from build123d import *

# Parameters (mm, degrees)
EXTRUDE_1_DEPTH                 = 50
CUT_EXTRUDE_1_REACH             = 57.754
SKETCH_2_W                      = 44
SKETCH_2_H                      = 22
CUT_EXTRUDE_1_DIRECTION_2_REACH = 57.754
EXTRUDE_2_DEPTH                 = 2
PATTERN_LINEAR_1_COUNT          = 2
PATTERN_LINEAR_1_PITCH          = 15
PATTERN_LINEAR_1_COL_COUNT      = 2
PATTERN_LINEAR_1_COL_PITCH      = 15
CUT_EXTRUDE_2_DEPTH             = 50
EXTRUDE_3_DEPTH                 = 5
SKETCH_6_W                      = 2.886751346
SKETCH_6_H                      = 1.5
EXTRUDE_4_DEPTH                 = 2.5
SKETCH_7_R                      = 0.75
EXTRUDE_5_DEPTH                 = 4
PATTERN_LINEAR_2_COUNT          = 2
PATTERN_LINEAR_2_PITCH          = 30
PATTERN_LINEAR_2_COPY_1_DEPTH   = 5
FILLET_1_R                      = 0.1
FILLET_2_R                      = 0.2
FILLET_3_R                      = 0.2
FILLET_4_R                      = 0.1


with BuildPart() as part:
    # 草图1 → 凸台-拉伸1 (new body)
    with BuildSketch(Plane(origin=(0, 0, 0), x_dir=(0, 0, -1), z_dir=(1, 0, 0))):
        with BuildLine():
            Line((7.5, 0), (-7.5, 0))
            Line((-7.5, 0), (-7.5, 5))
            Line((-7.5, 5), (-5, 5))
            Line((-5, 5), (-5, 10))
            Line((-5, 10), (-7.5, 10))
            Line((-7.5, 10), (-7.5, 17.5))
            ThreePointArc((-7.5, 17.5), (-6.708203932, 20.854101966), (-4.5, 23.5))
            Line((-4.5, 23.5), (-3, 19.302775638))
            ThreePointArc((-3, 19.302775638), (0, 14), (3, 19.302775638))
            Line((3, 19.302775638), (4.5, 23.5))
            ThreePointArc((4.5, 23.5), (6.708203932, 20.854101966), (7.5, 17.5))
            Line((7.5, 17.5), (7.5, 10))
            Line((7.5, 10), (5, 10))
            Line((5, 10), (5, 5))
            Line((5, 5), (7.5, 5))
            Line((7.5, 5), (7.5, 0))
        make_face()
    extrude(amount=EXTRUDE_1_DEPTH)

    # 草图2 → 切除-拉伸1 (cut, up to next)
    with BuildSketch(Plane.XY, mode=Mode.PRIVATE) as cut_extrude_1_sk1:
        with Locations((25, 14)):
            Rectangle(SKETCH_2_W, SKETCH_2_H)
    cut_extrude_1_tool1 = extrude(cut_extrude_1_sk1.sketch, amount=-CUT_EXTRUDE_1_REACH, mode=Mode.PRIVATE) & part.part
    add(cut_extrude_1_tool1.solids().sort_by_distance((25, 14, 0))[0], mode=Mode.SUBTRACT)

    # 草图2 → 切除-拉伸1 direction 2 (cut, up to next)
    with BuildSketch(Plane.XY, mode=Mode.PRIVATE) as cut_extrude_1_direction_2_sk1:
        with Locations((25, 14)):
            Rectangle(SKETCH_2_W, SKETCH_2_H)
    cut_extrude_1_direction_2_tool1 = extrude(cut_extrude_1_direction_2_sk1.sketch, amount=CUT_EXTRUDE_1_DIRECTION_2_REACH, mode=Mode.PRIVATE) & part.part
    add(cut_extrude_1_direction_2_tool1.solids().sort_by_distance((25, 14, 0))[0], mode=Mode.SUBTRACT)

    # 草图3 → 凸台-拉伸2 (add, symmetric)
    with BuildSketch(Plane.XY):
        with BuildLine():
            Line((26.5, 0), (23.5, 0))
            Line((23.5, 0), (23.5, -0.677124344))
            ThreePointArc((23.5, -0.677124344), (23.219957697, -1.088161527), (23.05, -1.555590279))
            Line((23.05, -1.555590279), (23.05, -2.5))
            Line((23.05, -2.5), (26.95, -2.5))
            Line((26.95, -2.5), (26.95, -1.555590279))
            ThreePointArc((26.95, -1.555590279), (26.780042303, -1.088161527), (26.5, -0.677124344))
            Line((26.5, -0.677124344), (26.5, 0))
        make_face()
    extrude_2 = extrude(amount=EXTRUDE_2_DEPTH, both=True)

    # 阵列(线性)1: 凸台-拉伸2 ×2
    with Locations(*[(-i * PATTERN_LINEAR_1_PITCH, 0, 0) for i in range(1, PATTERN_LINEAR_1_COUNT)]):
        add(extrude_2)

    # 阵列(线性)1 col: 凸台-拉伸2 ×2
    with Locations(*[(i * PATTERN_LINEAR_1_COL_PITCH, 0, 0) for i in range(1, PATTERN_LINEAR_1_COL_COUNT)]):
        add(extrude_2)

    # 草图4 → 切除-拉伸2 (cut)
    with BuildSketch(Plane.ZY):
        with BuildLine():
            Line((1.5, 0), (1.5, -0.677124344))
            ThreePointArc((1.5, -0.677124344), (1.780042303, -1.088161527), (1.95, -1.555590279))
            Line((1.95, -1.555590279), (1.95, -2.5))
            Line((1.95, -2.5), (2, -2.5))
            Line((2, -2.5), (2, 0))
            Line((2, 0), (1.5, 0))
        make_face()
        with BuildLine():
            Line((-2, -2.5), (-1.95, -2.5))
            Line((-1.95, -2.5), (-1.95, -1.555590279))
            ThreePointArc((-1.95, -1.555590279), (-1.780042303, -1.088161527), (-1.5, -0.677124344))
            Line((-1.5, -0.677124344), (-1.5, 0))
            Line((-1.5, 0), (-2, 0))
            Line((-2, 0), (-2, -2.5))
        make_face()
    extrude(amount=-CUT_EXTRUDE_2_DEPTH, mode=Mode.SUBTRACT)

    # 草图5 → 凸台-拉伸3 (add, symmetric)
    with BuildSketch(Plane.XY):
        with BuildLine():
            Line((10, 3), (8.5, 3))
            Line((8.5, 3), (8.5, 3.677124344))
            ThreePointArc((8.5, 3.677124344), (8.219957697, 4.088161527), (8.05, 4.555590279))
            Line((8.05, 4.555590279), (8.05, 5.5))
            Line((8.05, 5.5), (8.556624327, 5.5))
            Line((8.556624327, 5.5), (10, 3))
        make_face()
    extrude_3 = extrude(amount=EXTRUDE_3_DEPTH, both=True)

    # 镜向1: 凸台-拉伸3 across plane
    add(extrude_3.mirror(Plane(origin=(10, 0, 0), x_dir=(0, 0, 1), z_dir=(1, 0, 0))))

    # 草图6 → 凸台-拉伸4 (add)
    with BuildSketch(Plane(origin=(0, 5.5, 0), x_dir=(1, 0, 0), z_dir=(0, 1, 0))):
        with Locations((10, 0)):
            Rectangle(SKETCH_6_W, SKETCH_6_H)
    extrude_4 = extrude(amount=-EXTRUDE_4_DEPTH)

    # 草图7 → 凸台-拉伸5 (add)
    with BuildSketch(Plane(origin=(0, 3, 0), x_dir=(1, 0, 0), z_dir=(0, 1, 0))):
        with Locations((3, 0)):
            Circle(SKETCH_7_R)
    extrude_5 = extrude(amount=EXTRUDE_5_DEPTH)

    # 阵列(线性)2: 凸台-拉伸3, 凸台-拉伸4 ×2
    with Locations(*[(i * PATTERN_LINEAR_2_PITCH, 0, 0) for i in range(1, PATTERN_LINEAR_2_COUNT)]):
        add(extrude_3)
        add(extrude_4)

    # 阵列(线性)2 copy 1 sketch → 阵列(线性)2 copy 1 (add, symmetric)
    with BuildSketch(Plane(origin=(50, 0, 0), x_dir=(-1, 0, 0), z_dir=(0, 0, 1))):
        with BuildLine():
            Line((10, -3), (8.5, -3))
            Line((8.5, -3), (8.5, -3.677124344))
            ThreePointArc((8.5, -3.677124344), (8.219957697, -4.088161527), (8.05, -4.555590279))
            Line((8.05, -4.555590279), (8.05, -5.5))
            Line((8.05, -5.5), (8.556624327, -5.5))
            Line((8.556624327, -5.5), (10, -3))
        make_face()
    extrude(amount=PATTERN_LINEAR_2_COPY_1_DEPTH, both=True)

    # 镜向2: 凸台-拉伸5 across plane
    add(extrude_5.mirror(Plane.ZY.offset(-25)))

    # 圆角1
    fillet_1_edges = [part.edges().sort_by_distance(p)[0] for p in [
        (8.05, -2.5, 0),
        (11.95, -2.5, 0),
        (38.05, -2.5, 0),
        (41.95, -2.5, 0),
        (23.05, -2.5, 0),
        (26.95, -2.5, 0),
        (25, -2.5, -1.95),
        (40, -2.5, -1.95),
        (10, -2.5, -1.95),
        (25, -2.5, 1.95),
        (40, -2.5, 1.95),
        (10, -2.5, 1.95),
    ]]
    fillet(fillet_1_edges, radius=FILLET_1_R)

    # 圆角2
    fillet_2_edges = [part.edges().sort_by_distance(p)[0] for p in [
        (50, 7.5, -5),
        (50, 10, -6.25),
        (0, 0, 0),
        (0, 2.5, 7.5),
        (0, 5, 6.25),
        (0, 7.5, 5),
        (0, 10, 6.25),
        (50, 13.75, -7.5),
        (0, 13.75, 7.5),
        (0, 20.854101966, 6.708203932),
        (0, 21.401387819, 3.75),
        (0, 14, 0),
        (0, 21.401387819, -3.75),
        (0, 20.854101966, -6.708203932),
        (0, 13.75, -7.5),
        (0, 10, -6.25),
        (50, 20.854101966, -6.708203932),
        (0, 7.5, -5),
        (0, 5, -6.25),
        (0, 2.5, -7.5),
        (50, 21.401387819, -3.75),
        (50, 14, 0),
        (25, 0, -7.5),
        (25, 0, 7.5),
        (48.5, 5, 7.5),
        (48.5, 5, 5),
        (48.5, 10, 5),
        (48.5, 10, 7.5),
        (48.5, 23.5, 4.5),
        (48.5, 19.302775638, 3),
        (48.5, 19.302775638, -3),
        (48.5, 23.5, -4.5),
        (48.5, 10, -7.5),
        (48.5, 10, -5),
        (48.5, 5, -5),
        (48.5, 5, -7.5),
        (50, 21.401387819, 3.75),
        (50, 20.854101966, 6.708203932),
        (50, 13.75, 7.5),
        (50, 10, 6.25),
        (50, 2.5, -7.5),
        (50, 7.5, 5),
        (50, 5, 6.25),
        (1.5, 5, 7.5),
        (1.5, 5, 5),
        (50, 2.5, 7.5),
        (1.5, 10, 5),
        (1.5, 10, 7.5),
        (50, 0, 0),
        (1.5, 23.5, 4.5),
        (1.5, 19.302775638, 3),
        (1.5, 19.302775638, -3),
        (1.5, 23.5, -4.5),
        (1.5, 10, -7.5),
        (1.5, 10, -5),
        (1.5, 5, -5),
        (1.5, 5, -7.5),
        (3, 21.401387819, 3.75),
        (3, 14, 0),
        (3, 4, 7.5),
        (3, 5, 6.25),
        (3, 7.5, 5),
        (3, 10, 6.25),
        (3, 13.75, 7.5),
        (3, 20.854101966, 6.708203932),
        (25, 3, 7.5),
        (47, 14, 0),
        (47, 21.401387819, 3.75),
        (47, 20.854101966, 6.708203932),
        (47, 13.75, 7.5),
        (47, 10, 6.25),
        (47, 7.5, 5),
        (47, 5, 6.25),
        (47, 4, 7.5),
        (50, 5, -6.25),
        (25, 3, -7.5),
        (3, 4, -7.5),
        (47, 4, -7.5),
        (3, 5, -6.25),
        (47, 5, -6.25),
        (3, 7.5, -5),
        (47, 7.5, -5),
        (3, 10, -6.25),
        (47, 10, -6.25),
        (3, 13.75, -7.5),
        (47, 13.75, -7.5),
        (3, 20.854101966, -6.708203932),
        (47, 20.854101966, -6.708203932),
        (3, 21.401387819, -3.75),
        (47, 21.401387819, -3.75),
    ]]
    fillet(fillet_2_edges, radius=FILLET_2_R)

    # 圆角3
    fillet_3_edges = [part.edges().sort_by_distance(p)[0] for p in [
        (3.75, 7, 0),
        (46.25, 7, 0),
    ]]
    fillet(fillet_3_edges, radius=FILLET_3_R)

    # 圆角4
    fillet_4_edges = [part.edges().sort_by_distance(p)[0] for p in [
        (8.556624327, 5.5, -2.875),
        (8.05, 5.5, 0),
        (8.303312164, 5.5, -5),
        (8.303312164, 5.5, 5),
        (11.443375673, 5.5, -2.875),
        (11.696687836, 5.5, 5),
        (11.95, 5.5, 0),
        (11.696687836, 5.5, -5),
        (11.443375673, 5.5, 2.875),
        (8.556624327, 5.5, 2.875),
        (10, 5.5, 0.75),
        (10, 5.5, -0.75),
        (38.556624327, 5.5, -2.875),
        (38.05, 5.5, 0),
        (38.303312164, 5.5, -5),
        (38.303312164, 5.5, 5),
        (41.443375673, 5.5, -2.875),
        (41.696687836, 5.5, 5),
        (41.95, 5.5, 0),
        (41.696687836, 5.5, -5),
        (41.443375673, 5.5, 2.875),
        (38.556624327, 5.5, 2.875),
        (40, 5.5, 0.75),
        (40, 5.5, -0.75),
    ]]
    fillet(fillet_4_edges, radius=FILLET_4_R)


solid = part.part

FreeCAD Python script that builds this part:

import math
import FreeCAD as App
import Part
import Sketcher
Q = App.Units.Quantity


def edges_at(feature, points):
    """Names of the edges that pass closest to the given points."""
    edges = feature.Shape.Edges
    near = lambda p: min(range(len(edges)), key=lambda i: edges[i].distToShape(Part.Vertex(*p))[0])
    return sorted({f"Edge{near(p) + 1}" for p in points})

doc = App.newDocument("Part")
body = doc.addObject("PartDesign::Body", "Body")

sketch1 = body.newObject("Sketcher::SketchObject", "Sketch")
sketch1.AttachmentSupport = (doc.getObject("YZ_Plane"), [""])
sketch1.MapMode = "FlatFace"
sketch1.addGeometry(Part.LineSegment(App.Vector(0, 7.5, 0), App.Vector(0, -7.5, 0)), False)
sketch1.addGeometry(Part.LineSegment(App.Vector(0, -7.5, 0), App.Vector(5, -7.5, 0)), False)
sketch1.addGeometry(Part.LineSegment(App.Vector(5, -7.5, 0), App.Vector(5, -5, 0)), False)
sketch1.addGeometry(Part.LineSegment(App.Vector(5, -5, 0), App.Vector(10, -5, 0)), False)
sketch1.addGeometry(Part.LineSegment(App.Vector(10, -5, 0), App.Vector(10, -7.5, 0)), False)
sketch1.addGeometry(Part.LineSegment(App.Vector(10, -7.5, 0), App.Vector(17.5, -7.5, 0)), False)
sketch1.addGeometry(Part.ArcOfCircle(Part.Circle(App.Vector(17.5, 0, 0), App.Vector(0, 0, 1), 7.5), math.radians(-90), math.radians(-36.869898)), False)
sketch1.addGeometry(Part.LineSegment(App.Vector(23.5, -4.5, 0), App.Vector(19.302776, -3, 0)), False)
sketch1.addGeometry(Part.ArcOfCircle(Part.Circle(App.Vector(17.5, 0, 0), App.Vector(0, 0, 1), 3.5), math.radians(58.997281), math.radians(301.002719)), False)
sketch1.addGeometry(Part.LineSegment(App.Vector(19.302776, 3, 0), App.Vector(23.5, 4.5, 0)), False)
sketch1.addGeometry(Part.ArcOfCircle(Part.Circle(App.Vector(17.5, 0, 0), App.Vector(0, 0, 1), 7.5), math.radians(36.869898), math.radians(90)), False)
sketch1.addGeometry(Part.LineSegment(App.Vector(17.5, 7.5, 0), App.Vector(10, 7.5, 0)), False)
sketch1.addGeometry(Part.LineSegment(App.Vector(10, 7.5, 0), App.Vector(10, 5, 0)), False)
sketch1.addGeometry(Part.LineSegment(App.Vector(10, 5, 0), App.Vector(5, 5, 0)), False)
sketch1.addGeometry(Part.LineSegment(App.Vector(5, 5, 0), App.Vector(5, 7.5, 0)), False)
sketch1.addGeometry(Part.LineSegment(App.Vector(5, 7.5, 0), App.Vector(0, 7.5, 0)), False)
sketch1.addConstraint(Sketcher.Constraint("Coincident", 0, 2, 1, 1))
sketch1.addConstraint(Sketcher.Constraint("Coincident", 1, 2, 2, 1))
sketch1.addConstraint(Sketcher.Constraint("Coincident", 2, 2, 3, 1))
sketch1.addConstraint(Sketcher.Constraint("Coincident", 3, 2, 4, 1))
sketch1.addConstraint(Sketcher.Constraint("Coincident", 4, 2, 5, 1))
sketch1.addConstraint(Sketcher.Constraint("Tangent", 5, 2, 6, 1))
sketch1.addConstraint(Sketcher.Constraint("Coincident", 6, 2, 7, 1))
sketch1.addConstraint(Sketcher.Constraint("Coincident", 7, 2, 8, 2))
sketch1.addConstraint(Sketcher.Constraint("Coincident", 8, 1, 9, 1))
sketch1.addConstraint(Sketcher.Constraint("Coincident", 9, 2, 10, 1))
sketch1.addConstraint(Sketcher.Constraint("Tangent", 10, 2, 11, 1))
sketch1.addConstraint(Sketcher.Constraint("Coincident", 11, 2, 12, 1))
sketch1.addConstraint(Sketcher.Constraint("Coincident", 12, 2, 13, 1))
sketch1.addConstraint(Sketcher.Constraint("Coincident", 13, 2, 14, 1))
sketch1.addConstraint(Sketcher.Constraint("Coincident", 14, 2, 15, 1))
sketch1.addConstraint(Sketcher.Constraint("Coincident", 15, 2, 0, 1))
sketch1.addConstraint(Sketcher.Constraint("Vertical", 0))
sketch1.addConstraint(Sketcher.Constraint("Horizontal", 1))
sketch1.addConstraint(Sketcher.Constraint("Vertical", 2))
sketch1.addConstraint(Sketcher.Constraint("Horizontal", 3))
sketch1.addConstraint(Sketcher.Constraint("Vertical", 4))
sketch1.addConstraint(Sketcher.Constraint("Horizontal", 5))
sketch1.addConstraint(Sketcher.Constraint("Horizontal", 11))
sketch1.addConstraint(Sketcher.Constraint("Vertical", 12))
sketch1.addConstraint(Sketcher.Constraint("Horizontal", 13))
sketch1.addConstraint(Sketcher.Constraint("Vertical", 14))
sketch1.addConstraint(Sketcher.Constraint("Horizontal", 15))
sketch1.addConstraint(Sketcher.Constraint("Coincident", 8, 3, 6, 3))
sketch1.addConstraint(Sketcher.Constraint("Coincident", 10, 3, 6, 3))
sketch1.addConstraint(Sketcher.Constraint("Equal", 6, 10))
sketch1.addConstraint(Sketcher.Constraint("Symmetric", 0, 2, 15, 2, -1, 1))
sketch1.addConstraint(Sketcher.Constraint("Symmetric", 7, 2, 8, 1, -1))
sketch1.addConstraint(Sketcher.Constraint("Symmetric", 3, 2, 12, 2, -1))
sketch1.addConstraint(Sketcher.Constraint("Horizontal", 1, 2, 4, 2))
sketch1.addConstraint(Sketcher.Constraint("Vertical", 6, 2, 9, 2))
sketch1.addConstraint(Sketcher.Constraint("Vertical", 2, 2, 13, 2))
sketch1.addConstraint(Sketcher.Constraint("Equal", 1, 3))
sketch1.addConstraint(Sketcher.Constraint("Radius", 6, 7.5))
sketch1.addConstraint(Sketcher.Constraint("Radius", 8, 3.5))
sketch1.addConstraint(Sketcher.Constraint("DistanceX", 1, 1, 1, 2, 5.0))
sketch1.addConstraint(Sketcher.Constraint("DistanceX", 5, 1, 5, 2, 7.5))
sketch1.addConstraint(Sketcher.Constraint("DistanceY", 2, 1, 2, 2, 2.5))
sketch1.addConstraint(Sketcher.Constraint("DistanceY", 7, 2, -1, 1, 3.0))
sketch1.addConstraint(Sketcher.Constraint("DistanceX", 5, 2, 6, 2, 6.0))
pad1 = body.newObject("PartDesign::Pad", "Pad")
pad1.Profile = sketch1
pad1.Length = 50

sketch2 = body.newObject("Sketcher::SketchObject", "Sketch001")
sketch2.AttachmentSupport = (doc.getObject("XY_Plane"), [""])
sketch2.MapMode = "FlatFace"
sketch2.addGeometry(Part.LineSegment(App.Vector(3, 25, 0), App.Vector(3, 3, 0)), False)
sketch2.addGeometry(Part.LineSegment(App.Vector(3, 3, 0), App.Vector(47, 3, 0)), False)
sketch2.addGeometry(Part.LineSegment(App.Vector(47, 3, 0), App.Vector(47, 25, 0)), False)
sketch2.addGeometry(Part.LineSegment(App.Vector(47, 25, 0), App.Vector(3, 25, 0)), False)
sketch2.addConstraint(Sketcher.Constraint("Coincident", 0, 2, 1, 1))
sketch2.addConstraint(Sketcher.Constraint("Coincident", 1, 2, 2, 1))
sketch2.addConstraint(Sketcher.Constraint("Coincident", 2, 2, 3, 1))
sketch2.addConstraint(Sketcher.Constraint("Coincident", 3, 2, 0, 1))
sketch2.addConstraint(Sketcher.Constraint("Vertical", 0))
sketch2.addConstraint(Sketcher.Constraint("Horizontal", 1))
sketch2.addConstraint(Sketcher.Constraint("Vertical", 2))
sketch2.addConstraint(Sketcher.Constraint("Horizontal", 3))
sketch2.addConstraint(Sketcher.Constraint("DistanceX", 1, 1, 1, 2, 44.0))
sketch2.addConstraint(Sketcher.Constraint("DistanceY", 0, 2, 0, 1, 22.0))
sketch2.addConstraint(Sketcher.Constraint("DistanceX", -1, 1, 0, 2, 3.0))
sketch2.addConstraint(Sketcher.Constraint("DistanceY", -1, 1, 0, 2, 3.0))
pocket1 = body.newObject("PartDesign::Pocket", "Pocket")
pocket1.Profile = sketch2
pocket1.Type = "UpToFirst"

sketch3 = body.newObject("Sketcher::SketchObject", "Sketch002")
sketch3.AttachmentSupport = (doc.getObject("XY_Plane"), [""])
sketch3.MapMode = "FlatFace"
sketch3.addGeometry(Part.LineSegment(App.Vector(3, 25, 0), App.Vector(3, 3, 0)), False)
sketch3.addGeometry(Part.LineSegment(App.Vector(3, 3, 0), App.Vector(47, 3, 0)), False)
sketch3.addGeometry(Part.LineSegment(App.Vector(47, 3, 0), App.Vector(47, 25, 0)), False)
sketch3.addGeometry(Part.LineSegment(App.Vector(47, 25, 0), App.Vector(3, 25, 0)), False)
sketch3.addConstraint(Sketcher.Constraint("Coincident", 0, 2, 1, 1))
sketch3.addConstraint(Sketcher.Constraint("Coincident", 1, 2, 2, 1))
sketch3.addConstraint(Sketcher.Constraint("Coincident", 2, 2, 3, 1))
sketch3.addConstraint(Sketcher.Constraint("Coincident", 3, 2, 0, 1))
sketch3.addConstraint(Sketcher.Constraint("Vertical", 0))
sketch3.addConstraint(Sketcher.Constraint("Horizontal", 1))
sketch3.addConstraint(Sketcher.Constraint("Vertical", 2))
sketch3.addConstraint(Sketcher.Constraint("Horizontal", 3))
sketch3.addConstraint(Sketcher.Constraint("DistanceX", 1, 1, 1, 2, 44.0))
sketch3.addConstraint(Sketcher.Constraint("DistanceY", 0, 2, 0, 1, 22.0))
sketch3.addConstraint(Sketcher.Constraint("DistanceX", -1, 1, 0, 2, 3.0))
sketch3.addConstraint(Sketcher.Constraint("DistanceY", -1, 1, 0, 2, 3.0))
pocket2 = body.newObject("PartDesign::Pocket", "Pocket001")
pocket2.Profile = sketch3
pocket2.Type = "UpToFirst"
pocket2.Reversed = True

sketch4 = body.newObject("Sketcher::SketchObject", "Sketch003")
sketch4.AttachmentSupport = (doc.getObject("XY_Plane"), [""])
sketch4.MapMode = "FlatFace"
sketch4.addGeometry(Part.LineSegment(App.Vector(26.5, 0, 0), App.Vector(23.5, 0, 0)), False)
sketch4.addGeometry(Part.LineSegment(App.Vector(23.5, 0, 0), App.Vector(23.5, -0.677124, 0)), False)
sketch4.addGeometry(Part.ArcOfCircle(Part.Circle(App.Vector(25, -2, 0), App.Vector(0, 0, 1), 2), math.radians(138.590378), math.radians(167.161432)), False)
sketch4.addGeometry(Part.LineSegment(App.Vector(23.05, -1.55559, 0), App.Vector(23.05, -2.5, 0)), False)
sketch4.addGeometry(Part.LineSegment(App.Vector(23.05, -2.5, 0), App.Vector(26.95, -2.5, 0)), False)
sketch4.addGeometry(Part.LineSegment(App.Vector(26.95, -2.5, 0), App.Vector(26.95, -1.55559, 0)), False)
sketch4.addGeometry(Part.ArcOfCircle(Part.Circle(App.Vector(25, -2, 0), App.Vector(0, 0, 1), 2), math.radians(12.838568), math.radians(41.409622)), False)
sketch4.addGeometry(Part.LineSegment(App.Vector(26.5, -0.677124, 0), App.Vector(26.5, 0, 0)), False)
sketch4.addConstraint(Sketcher.Constraint("Coincident", 0, 2, 1, 1))
sketch4.addConstraint(Sketcher.Constraint("Coincident", 1, 2, 2, 1))
sketch4.addConstraint(Sketcher.Constraint("Coincident", 2, 2, 3, 1))
sketch4.addConstraint(Sketcher.Constraint("Coincident", 3, 2, 4, 1))
sketch4.addConstraint(Sketcher.Constraint("Coincident", 4, 2, 5, 1))
sketch4.addConstraint(Sketcher.Constraint("Coincident", 5, 2, 6, 1))
sketch4.addConstraint(Sketcher.Constraint("Coincident", 6, 2, 7, 1))
sketch4.addConstraint(Sketcher.Constraint("Coincident", 7, 2, 0, 1))
sketch4.addConstraint(Sketcher.Constraint("Horizontal", 0))
sketch4.addConstraint(Sketcher.Constraint("Vertical", 1))
sketch4.addConstraint(Sketcher.Constraint("Vertical", 3))
sketch4.addConstraint(Sketcher.Constraint("Horizontal", 4))
sketch4.addConstraint(Sketcher.Constraint("Vertical", 5))
sketch4.addConstraint(Sketcher.Constraint("Vertical", 7))
sketch4.addConstraint(Sketcher.Constraint("Coincident", 6, 3, 2, 3))
sketch4.addConstraint(Sketcher.Constraint("Equal", 2, 6))
sketch4.addConstraint(Sketcher.Constraint("PointOnObject", 0, 2, -1))
sketch4.addConstraint(Sketcher.Constraint("Horizontal", 2, 2, 5, 2))
sketch4.addConstraint(Sketcher.Constraint("Horizontal", 1, 2, 6, 2))
sketch4.addConstraint(Sketcher.Constraint("Radius", 2, 2.0))
sketch4.addConstraint(Sketcher.Constraint("DistanceX", 0, 2, 0, 1, 3.0))
sketch4.addConstraint(Sketcher.Constraint("DistanceX", 4, 1, 4, 2, 3.9))
sketch4.addConstraint(Sketcher.Constraint("DistanceX", -1, 1, 2, 3, 25.0))
sketch4.addConstraint(Sketcher.Constraint("DistanceY", 2, 3, -1, 1, 2.0))
sketch4.addConstraint(Sketcher.Constraint("DistanceY", 3, 2, -1, 1, 2.5))
pad2 = body.newObject("PartDesign::Pad", "Pad001")
pad2.Profile = sketch4
pad2.Length = 4
pad2.Midplane = True
doc.recompute()

linearpattern = body.newObject("PartDesign::LinearPattern", "LinearPattern")
linearpattern.Originals = [pad2]
linearpattern.Direction = (doc.getObject("X_Axis"), [""])
linearpattern.Mode = "offset"
linearpattern.Offset = 15
linearpattern.Occurrences = 2
linearpattern.Reversed = True
body.Tip = linearpattern
doc.recompute()

linearpattern2 = body.newObject("PartDesign::LinearPattern", "LinearPattern001")
linearpattern2.Originals = [pad2]
linearpattern2.Direction = (doc.getObject("X_Axis"), [""])
linearpattern2.Mode = "offset"
linearpattern2.Offset = 15
linearpattern2.Occurrences = 2
body.Tip = linearpattern2

sketch5 = body.newObject("Sketcher::SketchObject", "Sketch004")
sketch5.AttachmentSupport = (doc.getObject("YZ_Plane"), [""])
sketch5.MapMode = "FlatFace"
sketch5.addGeometry(Part.LineSegment(App.Vector(0, 1.5, 0), App.Vector(-0.677124, 1.5, 0)), False)
sketch5.addGeometry(Part.ArcOfCircle(Part.Circle(App.Vector(-2, 0, 0), App.Vector(0, 0, 1), 2), math.radians(48.590378), math.radians(77.161432)), False)
sketch5.addGeometry(Part.LineSegment(App.Vector(-1.55559, 1.95, 0), App.Vector(-2.5, 1.95, 0)), False)
sketch5.addGeometry(Part.LineSegment(App.Vector(-2.5, 1.95, 0), App.Vector(-2.5, 2, 0)), False)
sketch5.addGeometry(Part.LineSegment(App.Vector(-2.5, 2, 0), App.Vector(0, 2, 0)), False)
sketch5.addGeometry(Part.LineSegment(App.Vector(0, 2, 0), App.Vector(0, 1.5, 0)), False)
sketch5.addGeometry(Part.LineSegment(App.Vector(-2.5, -2, 0), App.Vector(-2.5, -1.95, 0)), False)
sketch5.addGeometry(Part.LineSegment(App.Vector(-2.5, -1.95, 0), App.Vector(-1.55559, -1.95, 0)), False)
sketch5.addGeometry(Part.ArcOfCircle(Part.Circle(App.Vector(-2, 0, 0), App.Vector(0, 0, 1), 2), math.radians(-77.161432), math.radians(-48.590378)), False)
sketch5.addGeometry(Part.LineSegment(App.Vector(-0.677124, -1.5, 0), App.Vector(0, -1.5, 0)), False)
sketch5.addGeometry(Part.LineSegment(App.Vector(0, -1.5, 0), App.Vector(0, -2, 0)), False)
sketch5.addGeometry(Part.LineSegment(App.Vector(0, -2, 0), App.Vector(-2.5, -2, 0)), False)
sketch5.addConstraint(Sketcher.Constraint("Coincident", 0, 2, 1, 1))
sketch5.addConstraint(Sketcher.Constraint("Coincident", 1, 2, 2, 1))
sketch5.addConstraint(Sketcher.Constraint("Coincident", 2, 2, 3, 1))
sketch5.addConstraint(Sketcher.Constraint("Coincident", 3, 2, 4, 1))
sketch5.addConstraint(Sketcher.Constraint("Coincident", 4, 2, 5, 1))
sketch5.addConstraint(Sketcher.Constraint("Coincident", 5, 2, 0, 1))
sketch5.addConstraint(Sketcher.Constraint("Coincident", 6, 2, 7, 1))
sketch5.addConstraint(Sketcher.Constraint("Coincident", 7, 2, 8, 1))
sketch5.addConstraint(Sketcher.Constraint("Coincident", 8, 2, 9, 1))
sketch5.addConstraint(Sketcher.Constraint("Coincident", 9, 2, 10, 1))
sketch5.addConstraint(Sketcher.Constraint("Coincident", 10, 2, 11, 1))
sketch5.addConstraint(Sketcher.Constraint("Coincident", 11, 2, 6, 1))
sketch5.addConstraint(Sketcher.Constraint("Horizontal", 0))
sketch5.addConstraint(Sketcher.Constraint("Horizontal", 2))
sketch5.addConstraint(Sketcher.Constraint("Vertical", 3))
sketch5.addConstraint(Sketcher.Constraint("Horizontal", 4))
sketch5.addConstraint(Sketcher.Constraint("Vertical", 5))
sketch5.addConstraint(Sketcher.Constraint("Vertical", 6))
sketch5.addConstraint(Sketcher.Constraint("Horizontal", 7))
sketch5.addConstraint(Sketcher.Constraint("Horizontal", 9))
sketch5.addConstraint(Sketcher.Constraint("Vertical", 10))
sketch5.addConstraint(Sketcher.Constraint("Horizontal", 11))
sketch5.addConstraint(Sketcher.Constraint("Coincident", 8, 3, 1, 3))
sketch5.addConstraint(Sketcher.Constraint("Equal", 1, 8))
sketch5.addConstraint(Sketcher.Constraint("Symmetric", 5, 2, 9, 2, -1, 1))
sketch5.addConstraint(Sketcher.Constraint("Symmetric", 2, 2, 6, 2, -1))
sketch5.addConstraint(Sketcher.Constraint("Symmetric", 4, 2, 10, 2, -1))
sketch5.addConstraint(Sketcher.Constraint("PointOnObject", 1, 3, -1))
sketch5.addConstraint(Sketcher.Constraint("Radius", 1, 2.0))
sketch5.addConstraint(Sketcher.Constraint("DistanceX", 4, 1, 4, 2, 2.5))
sketch5.addConstraint(Sketcher.Constraint("DistanceY", 5, 2, 5, 1, 0.5))
sketch5.addConstraint(Sketcher.Constraint("DistanceX", 1, 3, -1, 1, 2.0))
sketch5.addConstraint(Sketcher.Constraint("DistanceY", -1, 1, 3, 2, 2.0))
sketch5.addConstraint(Sketcher.Constraint("DistanceY", 3, 1, 3, 2, 0.05))
pocket3 = body.newObject("PartDesign::Pocket", "Pocket002")
pocket3.Profile = sketch5
pocket3.Length = 50
pocket3.Reversed = True

sketch6 = body.newObject("Sketcher::SketchObject", "Sketch005")
sketch6.AttachmentSupport = (doc.getObject("XY_Plane"), [""])
sketch6.MapMode = "FlatFace"
sketch6.addGeometry(Part.LineSegment(App.Vector(8.5, 3, 0), App.Vector(10, 3, 0)), False)
sketch6.addGeometry(Part.LineSegment(App.Vector(10, 3, 0), App.Vector(8.556624, 5.5, 0)), False)
sketch6.addGeometry(Part.LineSegment(App.Vector(8.556624, 5.5, 0), App.Vector(8.05, 5.5, 0)), False)
sketch6.addGeometry(Part.LineSegment(App.Vector(8.05, 5.5, 0), App.Vector(8.05, 4.55559, 0)), False)
sketch6.addGeometry(Part.ArcOfCircle(Part.Circle(App.Vector(10, 5, 0), App.Vector(0, 0, 1), 2), math.radians(-167.161432), math.radians(-138.590378)), False)
sketch6.addGeometry(Part.LineSegment(App.Vector(8.5, 3.677124, 0), App.Vector(8.5, 3, 0)), False)
sketch6.addConstraint(Sketcher.Constraint("Coincident", 0, 2, 1, 1))
sketch6.addConstraint(Sketcher.Constraint("Coincident", 1, 2, 2, 1))
sketch6.addConstraint(Sketcher.Constraint("Coincident", 2, 2, 3, 1))
sketch6.addConstraint(Sketcher.Constraint("Coincident", 3, 2, 4, 1))
sketch6.addConstraint(Sketcher.Constraint("Coincident", 4, 2, 5, 1))
sketch6.addConstraint(Sketcher.Constraint("Coincident", 5, 2, 0, 1))
sketch6.addConstraint(Sketcher.Constraint("Horizontal", 0))
sketch6.addConstraint(Sketcher.Constraint("Horizontal", 2))
sketch6.addConstraint(Sketcher.Constraint("Vertical", 3))
sketch6.addConstraint(Sketcher.Constraint("Vertical", 5))
sketch6.addConstraint(Sketcher.Constraint("Vertical", 4, 3, 0, 2))
sketch6.addConstraint(Sketcher.Constraint("Radius", 4, 2.0))
sketch6.addConstraint(Sketcher.Constraint("Angle", 1, Q("120 deg")))
sketch6.addConstraint(Sketcher.Constraint("DistanceX", 0, 1, 0, 2, 1.5))
sketch6.addConstraint(Sketcher.Constraint("DistanceX", -1, 1, 4, 3, 10.0))
sketch6.addConstraint(Sketcher.Constraint("DistanceY", -1, 1, 4, 3, 5.0))
sketch6.addConstraint(Sketcher.Constraint("DistanceY", -1, 1, 0, 2, 3.0))
sketch6.addConstraint(Sketcher.Constraint("DistanceY", -1, 1, 1, 2, 5.5))
sketch6.addConstraint(Sketcher.Constraint("DistanceX", -1, 1, 2, 2, 8.05))
pad3 = body.newObject("PartDesign::Pad", "Pad002")
pad3.Profile = sketch6
pad3.Length = 10
pad3.Midplane = True
doc.recompute()

datumplane = body.newObject("PartDesign::Plane", "DatumPlane")
datumplane.AttachmentSupport = (doc.getObject("YZ_Plane"), [""])
datumplane.MapMode = "FlatFace"
datumplane.AttachmentOffset = App.Placement(App.Vector(0, 0, 10), App.Rotation())
mirrored = body.newObject("PartDesign::Mirrored", "Mirrored")
mirrored.Originals = [pad3]
mirrored.MirrorPlane = (datumplane, [""])
body.Tip = mirrored

sketch7 = body.newObject("Sketcher::SketchObject", "Sketch006")
sketch7.AttachmentSupport = (doc.getObject("XZ_Plane"), [""])
sketch7.MapMode = "FlatFace"
sketch7.AttachmentOffset = App.Placement(App.Vector(0, 0, -5.5), App.Rotation())
sketch7.addGeometry(Part.LineSegment(App.Vector(8.556624, -0.75, 0), App.Vector(8.556624, 0.75, 0)), False)
sketch7.addGeometry(Part.LineSegment(App.Vector(8.556624, 0.75, 0), App.Vector(11.443376, 0.75, 0)), False)
sketch7.addGeometry(Part.LineSegment(App.Vector(11.443376, 0.75, 0), App.Vector(11.443376, -0.75, 0)), False)
sketch7.addGeometry(Part.LineSegment(App.Vector(11.443376, -0.75, 0), App.Vector(8.556624, -0.75, 0)), False)
sketch7.addConstraint(Sketcher.Constraint("Coincident", 0, 2, 1, 1))
sketch7.addConstraint(Sketcher.Constraint("Coincident", 1, 2, 2, 1))
sketch7.addConstraint(Sketcher.Constraint("Coincident", 2, 2, 3, 1))
sketch7.addConstraint(Sketcher.Constraint("Coincident", 3, 2, 0, 1))
sketch7.addConstraint(Sketcher.Constraint("Vertical", 0))
sketch7.addConstraint(Sketcher.Constraint("Horizontal", 1))
sketch7.addConstraint(Sketcher.Constraint("Vertical", 2))
sketch7.addConstraint(Sketcher.Constraint("Horizontal", 3))
sketch7.addConstraint(Sketcher.Constraint("DistanceY", 0, 1, 0, 2, 1.5))
sketch7.addConstraint(Sketcher.Constraint("DistanceY", -1, 1, 0, 2, 0.75))
sketch7.addConstraint(Sketcher.Constraint("DistanceX", 1, 1, 1, 2, 2.886751))
sketch7.addConstraint(Sketcher.Constraint("DistanceX", -1, 1, 0, 2, 8.556624))
pad4 = body.newObject("PartDesign::Pad", "Pad003")
pad4.Profile = sketch7
pad4.Length = 2.5

sketch8 = body.newObject("Sketcher::SketchObject", "Sketch007")
sketch8.AttachmentSupport = (doc.getObject("XZ_Plane"), [""])
sketch8.MapMode = "FlatFace"
sketch8.AttachmentOffset = App.Placement(App.Vector(0, 0, -3), App.Rotation())
sketch8.addGeometry(Part.Circle(App.Vector(3, 0, 0), App.Vector(0, 0, 1), 0.75), False)
sketch8.addConstraint(Sketcher.Constraint("PointOnObject", 0, 3, -1))
sketch8.addConstraint(Sketcher.Constraint("Diameter", 0, 1.5))
sketch8.addConstraint(Sketcher.Constraint("DistanceX", -1, 1, 0, 3, 3.0))
pad5 = body.newObject("PartDesign::Pad", "Pad004")
pad5.Profile = sketch8
pad5.Length = 4
pad5.Reversed = True
doc.recompute()

linearpattern3 = body.newObject("PartDesign::LinearPattern", "LinearPattern002")
linearpattern3.Originals = [pad3, pad4]
linearpattern3.Direction = (doc.getObject("X_Axis"), [""])
linearpattern3.Mode = "offset"
linearpattern3.Offset = 30
linearpattern3.Occurrences = 2
body.Tip = linearpattern3

sketch9 = body.newObject("Sketcher::SketchObject", "Sketch008")
sketch9.AttachmentSupport = (doc.getObject("XY_Plane"), [""])
sketch9.MapMode = "FlatFace"
sketch9.addGeometry(Part.LineSegment(App.Vector(40, 3, 0), App.Vector(41.5, 3, 0)), False)
sketch9.addGeometry(Part.LineSegment(App.Vector(41.5, 3, 0), App.Vector(41.5, 3.677124, 0)), False)
sketch9.addGeometry(Part.ArcOfCircle(Part.Circle(App.Vector(40, 5, 0), App.Vector(0, 0, 1), 2), math.radians(-41.409622), math.radians(-12.838568)), False)
sketch9.addGeometry(Part.LineSegment(App.Vector(41.95, 4.55559, 0), App.Vector(41.95, 5.5, 0)), False)
sketch9.addGeometry(Part.LineSegment(App.Vector(41.95, 5.5, 0), App.Vector(41.443376, 5.5, 0)), False)
sketch9.addGeometry(Part.LineSegment(App.Vector(41.443376, 5.5, 0), App.Vector(40, 3, 0)), False)
sketch9.addConstraint(Sketcher.Constraint("Coincident", 0, 2, 1, 1))
sketch9.addConstraint(Sketcher.Constraint("Coincident", 1, 2, 2, 1))
sketch9.addConstraint(Sketcher.Constraint("Coincident", 2, 2, 3, 1))
sketch9.addConstraint(Sketcher.Constraint("Coincident", 3, 2, 4, 1))
sketch9.addConstraint(Sketcher.Constraint("Coincident", 4, 2, 5, 1))
sketch9.addConstraint(Sketcher.Constraint("Coincident", 5, 2, 0, 1))
sketch9.addConstraint(Sketcher.Constraint("Horizontal", 0))
sketch9.addConstraint(Sketcher.Constraint("Vertical", 1))
sketch9.addConstraint(Sketcher.Constraint("Vertical", 3))
sketch9.addConstraint(Sketcher.Constraint("Horizontal", 4))
sketch9.addConstraint(Sketcher.Constraint("Vertical", 2, 3, 5, 2))
sketch9.addConstraint(Sketcher.Constraint("Radius", 2, 2.0))
sketch9.addConstraint(Sketcher.Constraint("Angle", 5, Q("-120 deg")))
sketch9.addConstraint(Sketcher.Constraint("DistanceX", 0, 1, 0, 2, 1.5))
sketch9.addConstraint(Sketcher.Constraint("DistanceX", -1, 1, 2, 3, 40.0))
sketch9.addConstraint(Sketcher.Constraint("DistanceY", -1, 1, 2, 3, 5.0))
sketch9.addConstraint(Sketcher.Constraint("DistanceY", -1, 1, 0, 2, 3.0))
sketch9.addConstraint(Sketcher.Constraint("DistanceY", -1, 1, 3, 2, 5.5))
sketch9.addConstraint(Sketcher.Constraint("DistanceX", -1, 1, 2, 2, 41.95))
pad6 = body.newObject("PartDesign::Pad", "Pad005")
pad6.Profile = sketch9
pad6.Length = 10
pad6.Midplane = True
doc.recompute()

datumplane2 = body.newObject("PartDesign::Plane", "DatumPlane001")
datumplane2.AttachmentSupport = (doc.getObject("YZ_Plane"), [""])
datumplane2.MapMode = "FlatFace"
datumplane2.AttachmentOffset = App.Placement(App.Vector(0, 0, 25), App.Rotation())
mirrored2 = body.newObject("PartDesign::Mirrored", "Mirrored001")
mirrored2.Originals = [pad5]
mirrored2.MirrorPlane = (datumplane2, [""])
body.Tip = mirrored2
doc.recompute()

fillet = body.newObject("PartDesign::Fillet", "Fillet")
fillet.Base = (mirrored2, edges_at(mirrored2, [
    (8.05, -2.5, 0),
    (11.95, -2.5, 0),
    (38.05, -2.5, 0),
    (41.95, -2.5, 0),
    (23.05, -2.5, 0),
    (26.95, -2.5, 0),
    (25, -2.5, -1.95),
    (40, -2.5, -1.95),
    (10, -2.5, -1.95),
    (25, -2.5, 1.95),
    (40, -2.5, 1.95),
    (10, -2.5, 1.95),
]))
fillet.Radius = 0.1
doc.recompute()

fillet2 = body.newObject("PartDesign::Fillet", "Fillet001")
fillet2.Base = (fillet, edges_at(fillet, [
    (50, 7.5, -5),
    (50, 10, -6.25),
    (0, 0, 0),
    (0, 2.5, 7.5),
    (0, 5, 6.25),
    (0, 7.5, 5),
    (0, 10, 6.25),
    (50, 13.75, -7.5),
    (0, 13.75, 7.5),
    (0, 20.854, 6.708),
    (0, 21.401, 3.75),
    (0, 14, 0),
    (0, 21.401, -3.75),
    (0, 20.854, -6.708),
    (0, 13.75, -7.5),
    (0, 10, -6.25),
    (50, 20.854, -6.708),
    (0, 7.5, -5),
    (0, 5, -6.25),
    (0, 2.5, -7.5),
    (50, 21.401, -3.75),
    (50, 14, 0),
    (25, 0, -7.5),
    (25, 0, 7.5),
    (48.5, 5, 7.5),
    (48.5, 5, 5),
    (48.5, 10, 5),
    (48.5, 10, 7.5),
    (48.5, 23.5, 4.5),
    (48.5, 19.303, 3),
    (48.5, 19.303, -3),
    (48.5, 23.5, -4.5),
    (48.5, 10, -7.5),
    (48.5, 10, -5),
    (48.5, 5, -5),
    (48.5, 5, -7.5),
    (50, 21.401, 3.75),
    (50, 20.854, 6.708),
    (50, 13.75, 7.5),
    (50, 10, 6.25),
    (50, 2.5, -7.5),
    (50, 7.5, 5),
    (50, 5, 6.25),
    (1.5, 5, 7.5),
    (1.5, 5, 5),
    (50, 2.5, 7.5),
    (1.5, 10, 5),
    (1.5, 10, 7.5),
    (50, 0, 0),
    (1.5, 23.5, 4.5),
    (1.5, 19.303, 3),
    (1.5, 19.303, -3),
    (1.5, 23.5, -4.5),
    (1.5, 10, -7.5),
    (1.5, 10, -5),
    (1.5, 5, -5),
    (1.5, 5, -7.5),
    (3, 21.401, 3.75),
    (3, 14, 0),
    (3, 4, 7.5),
    (3, 5, 6.25),
    (3, 7.5, 5),
    (3, 10, 6.25),
    (3, 13.75, 7.5),
    (3, 20.854, 6.708),
    (25, 3, 7.5),
    (47, 14, 0),
    (47, 21.401, 3.75),
    (47, 20.854, 6.708),
    (47, 13.75, 7.5),
    (47, 10, 6.25),
    (47, 7.5, 5),
    (47, 5, 6.25),
    (47, 4, 7.5),
    (50, 5, -6.25),
    (25, 3, -7.5),
    (3, 4, -7.5),
    (47, 4, -7.5),
    (3, 5, -6.25),
    (47, 5, -6.25),
    (3, 7.5, -5),
    (47, 7.5, -5),
    (3, 10, -6.25),
    (47, 10, -6.25),
    (3, 13.75, -7.5),
    (47, 13.75, -7.5),
    (3, 20.854, -6.708),
    (47, 20.854, -6.708),
    (3, 21.401, -3.75),
    (47, 21.401, -3.75),
]))
fillet2.Radius = 0.2
doc.recompute()

fillet3 = body.newObject("PartDesign::Fillet", "Fillet002")
fillet3.Base = (fillet2, edges_at(fillet2, [(3.75, 7, 0), (46.25, 7, 0)]))
fillet3.Radius = 0.2
doc.recompute()

fillet4 = body.newObject("PartDesign::Fillet", "Fillet003")
fillet4.Base = (fillet3, edges_at(fillet3, [
    (8.557, 5.5, -2.875),
    (8.05, 5.5, 0),
    (8.303, 5.5, -5),
    (8.303, 5.5, 5),
    (11.443, 5.5, -2.875),
    (11.697, 5.5, 5),
    (11.95, 5.5, 0),
    (11.697, 5.5, -5),
    (11.443, 5.5, 2.875),
    (8.557, 5.5, 2.875),
    (10, 5.5, 0.75),
    (10, 5.5, -0.75),
    (38.557, 5.5, -2.875),
    (38.05, 5.5, 0),
    (38.303, 5.5, -5),
    (38.303, 5.5, 5),
    (41.443, 5.5, -2.875),
    (41.697, 5.5, 5),
    (41.95, 5.5, 0),
    (41.697, 5.5, -5),
    (41.443, 5.5, 2.875),
    (38.557, 5.5, 2.875),
    (40, 5.5, 0.75),
    (40, 5.5, -0.75),
]))
fillet4.Radius = 0.1

doc.recompute()
